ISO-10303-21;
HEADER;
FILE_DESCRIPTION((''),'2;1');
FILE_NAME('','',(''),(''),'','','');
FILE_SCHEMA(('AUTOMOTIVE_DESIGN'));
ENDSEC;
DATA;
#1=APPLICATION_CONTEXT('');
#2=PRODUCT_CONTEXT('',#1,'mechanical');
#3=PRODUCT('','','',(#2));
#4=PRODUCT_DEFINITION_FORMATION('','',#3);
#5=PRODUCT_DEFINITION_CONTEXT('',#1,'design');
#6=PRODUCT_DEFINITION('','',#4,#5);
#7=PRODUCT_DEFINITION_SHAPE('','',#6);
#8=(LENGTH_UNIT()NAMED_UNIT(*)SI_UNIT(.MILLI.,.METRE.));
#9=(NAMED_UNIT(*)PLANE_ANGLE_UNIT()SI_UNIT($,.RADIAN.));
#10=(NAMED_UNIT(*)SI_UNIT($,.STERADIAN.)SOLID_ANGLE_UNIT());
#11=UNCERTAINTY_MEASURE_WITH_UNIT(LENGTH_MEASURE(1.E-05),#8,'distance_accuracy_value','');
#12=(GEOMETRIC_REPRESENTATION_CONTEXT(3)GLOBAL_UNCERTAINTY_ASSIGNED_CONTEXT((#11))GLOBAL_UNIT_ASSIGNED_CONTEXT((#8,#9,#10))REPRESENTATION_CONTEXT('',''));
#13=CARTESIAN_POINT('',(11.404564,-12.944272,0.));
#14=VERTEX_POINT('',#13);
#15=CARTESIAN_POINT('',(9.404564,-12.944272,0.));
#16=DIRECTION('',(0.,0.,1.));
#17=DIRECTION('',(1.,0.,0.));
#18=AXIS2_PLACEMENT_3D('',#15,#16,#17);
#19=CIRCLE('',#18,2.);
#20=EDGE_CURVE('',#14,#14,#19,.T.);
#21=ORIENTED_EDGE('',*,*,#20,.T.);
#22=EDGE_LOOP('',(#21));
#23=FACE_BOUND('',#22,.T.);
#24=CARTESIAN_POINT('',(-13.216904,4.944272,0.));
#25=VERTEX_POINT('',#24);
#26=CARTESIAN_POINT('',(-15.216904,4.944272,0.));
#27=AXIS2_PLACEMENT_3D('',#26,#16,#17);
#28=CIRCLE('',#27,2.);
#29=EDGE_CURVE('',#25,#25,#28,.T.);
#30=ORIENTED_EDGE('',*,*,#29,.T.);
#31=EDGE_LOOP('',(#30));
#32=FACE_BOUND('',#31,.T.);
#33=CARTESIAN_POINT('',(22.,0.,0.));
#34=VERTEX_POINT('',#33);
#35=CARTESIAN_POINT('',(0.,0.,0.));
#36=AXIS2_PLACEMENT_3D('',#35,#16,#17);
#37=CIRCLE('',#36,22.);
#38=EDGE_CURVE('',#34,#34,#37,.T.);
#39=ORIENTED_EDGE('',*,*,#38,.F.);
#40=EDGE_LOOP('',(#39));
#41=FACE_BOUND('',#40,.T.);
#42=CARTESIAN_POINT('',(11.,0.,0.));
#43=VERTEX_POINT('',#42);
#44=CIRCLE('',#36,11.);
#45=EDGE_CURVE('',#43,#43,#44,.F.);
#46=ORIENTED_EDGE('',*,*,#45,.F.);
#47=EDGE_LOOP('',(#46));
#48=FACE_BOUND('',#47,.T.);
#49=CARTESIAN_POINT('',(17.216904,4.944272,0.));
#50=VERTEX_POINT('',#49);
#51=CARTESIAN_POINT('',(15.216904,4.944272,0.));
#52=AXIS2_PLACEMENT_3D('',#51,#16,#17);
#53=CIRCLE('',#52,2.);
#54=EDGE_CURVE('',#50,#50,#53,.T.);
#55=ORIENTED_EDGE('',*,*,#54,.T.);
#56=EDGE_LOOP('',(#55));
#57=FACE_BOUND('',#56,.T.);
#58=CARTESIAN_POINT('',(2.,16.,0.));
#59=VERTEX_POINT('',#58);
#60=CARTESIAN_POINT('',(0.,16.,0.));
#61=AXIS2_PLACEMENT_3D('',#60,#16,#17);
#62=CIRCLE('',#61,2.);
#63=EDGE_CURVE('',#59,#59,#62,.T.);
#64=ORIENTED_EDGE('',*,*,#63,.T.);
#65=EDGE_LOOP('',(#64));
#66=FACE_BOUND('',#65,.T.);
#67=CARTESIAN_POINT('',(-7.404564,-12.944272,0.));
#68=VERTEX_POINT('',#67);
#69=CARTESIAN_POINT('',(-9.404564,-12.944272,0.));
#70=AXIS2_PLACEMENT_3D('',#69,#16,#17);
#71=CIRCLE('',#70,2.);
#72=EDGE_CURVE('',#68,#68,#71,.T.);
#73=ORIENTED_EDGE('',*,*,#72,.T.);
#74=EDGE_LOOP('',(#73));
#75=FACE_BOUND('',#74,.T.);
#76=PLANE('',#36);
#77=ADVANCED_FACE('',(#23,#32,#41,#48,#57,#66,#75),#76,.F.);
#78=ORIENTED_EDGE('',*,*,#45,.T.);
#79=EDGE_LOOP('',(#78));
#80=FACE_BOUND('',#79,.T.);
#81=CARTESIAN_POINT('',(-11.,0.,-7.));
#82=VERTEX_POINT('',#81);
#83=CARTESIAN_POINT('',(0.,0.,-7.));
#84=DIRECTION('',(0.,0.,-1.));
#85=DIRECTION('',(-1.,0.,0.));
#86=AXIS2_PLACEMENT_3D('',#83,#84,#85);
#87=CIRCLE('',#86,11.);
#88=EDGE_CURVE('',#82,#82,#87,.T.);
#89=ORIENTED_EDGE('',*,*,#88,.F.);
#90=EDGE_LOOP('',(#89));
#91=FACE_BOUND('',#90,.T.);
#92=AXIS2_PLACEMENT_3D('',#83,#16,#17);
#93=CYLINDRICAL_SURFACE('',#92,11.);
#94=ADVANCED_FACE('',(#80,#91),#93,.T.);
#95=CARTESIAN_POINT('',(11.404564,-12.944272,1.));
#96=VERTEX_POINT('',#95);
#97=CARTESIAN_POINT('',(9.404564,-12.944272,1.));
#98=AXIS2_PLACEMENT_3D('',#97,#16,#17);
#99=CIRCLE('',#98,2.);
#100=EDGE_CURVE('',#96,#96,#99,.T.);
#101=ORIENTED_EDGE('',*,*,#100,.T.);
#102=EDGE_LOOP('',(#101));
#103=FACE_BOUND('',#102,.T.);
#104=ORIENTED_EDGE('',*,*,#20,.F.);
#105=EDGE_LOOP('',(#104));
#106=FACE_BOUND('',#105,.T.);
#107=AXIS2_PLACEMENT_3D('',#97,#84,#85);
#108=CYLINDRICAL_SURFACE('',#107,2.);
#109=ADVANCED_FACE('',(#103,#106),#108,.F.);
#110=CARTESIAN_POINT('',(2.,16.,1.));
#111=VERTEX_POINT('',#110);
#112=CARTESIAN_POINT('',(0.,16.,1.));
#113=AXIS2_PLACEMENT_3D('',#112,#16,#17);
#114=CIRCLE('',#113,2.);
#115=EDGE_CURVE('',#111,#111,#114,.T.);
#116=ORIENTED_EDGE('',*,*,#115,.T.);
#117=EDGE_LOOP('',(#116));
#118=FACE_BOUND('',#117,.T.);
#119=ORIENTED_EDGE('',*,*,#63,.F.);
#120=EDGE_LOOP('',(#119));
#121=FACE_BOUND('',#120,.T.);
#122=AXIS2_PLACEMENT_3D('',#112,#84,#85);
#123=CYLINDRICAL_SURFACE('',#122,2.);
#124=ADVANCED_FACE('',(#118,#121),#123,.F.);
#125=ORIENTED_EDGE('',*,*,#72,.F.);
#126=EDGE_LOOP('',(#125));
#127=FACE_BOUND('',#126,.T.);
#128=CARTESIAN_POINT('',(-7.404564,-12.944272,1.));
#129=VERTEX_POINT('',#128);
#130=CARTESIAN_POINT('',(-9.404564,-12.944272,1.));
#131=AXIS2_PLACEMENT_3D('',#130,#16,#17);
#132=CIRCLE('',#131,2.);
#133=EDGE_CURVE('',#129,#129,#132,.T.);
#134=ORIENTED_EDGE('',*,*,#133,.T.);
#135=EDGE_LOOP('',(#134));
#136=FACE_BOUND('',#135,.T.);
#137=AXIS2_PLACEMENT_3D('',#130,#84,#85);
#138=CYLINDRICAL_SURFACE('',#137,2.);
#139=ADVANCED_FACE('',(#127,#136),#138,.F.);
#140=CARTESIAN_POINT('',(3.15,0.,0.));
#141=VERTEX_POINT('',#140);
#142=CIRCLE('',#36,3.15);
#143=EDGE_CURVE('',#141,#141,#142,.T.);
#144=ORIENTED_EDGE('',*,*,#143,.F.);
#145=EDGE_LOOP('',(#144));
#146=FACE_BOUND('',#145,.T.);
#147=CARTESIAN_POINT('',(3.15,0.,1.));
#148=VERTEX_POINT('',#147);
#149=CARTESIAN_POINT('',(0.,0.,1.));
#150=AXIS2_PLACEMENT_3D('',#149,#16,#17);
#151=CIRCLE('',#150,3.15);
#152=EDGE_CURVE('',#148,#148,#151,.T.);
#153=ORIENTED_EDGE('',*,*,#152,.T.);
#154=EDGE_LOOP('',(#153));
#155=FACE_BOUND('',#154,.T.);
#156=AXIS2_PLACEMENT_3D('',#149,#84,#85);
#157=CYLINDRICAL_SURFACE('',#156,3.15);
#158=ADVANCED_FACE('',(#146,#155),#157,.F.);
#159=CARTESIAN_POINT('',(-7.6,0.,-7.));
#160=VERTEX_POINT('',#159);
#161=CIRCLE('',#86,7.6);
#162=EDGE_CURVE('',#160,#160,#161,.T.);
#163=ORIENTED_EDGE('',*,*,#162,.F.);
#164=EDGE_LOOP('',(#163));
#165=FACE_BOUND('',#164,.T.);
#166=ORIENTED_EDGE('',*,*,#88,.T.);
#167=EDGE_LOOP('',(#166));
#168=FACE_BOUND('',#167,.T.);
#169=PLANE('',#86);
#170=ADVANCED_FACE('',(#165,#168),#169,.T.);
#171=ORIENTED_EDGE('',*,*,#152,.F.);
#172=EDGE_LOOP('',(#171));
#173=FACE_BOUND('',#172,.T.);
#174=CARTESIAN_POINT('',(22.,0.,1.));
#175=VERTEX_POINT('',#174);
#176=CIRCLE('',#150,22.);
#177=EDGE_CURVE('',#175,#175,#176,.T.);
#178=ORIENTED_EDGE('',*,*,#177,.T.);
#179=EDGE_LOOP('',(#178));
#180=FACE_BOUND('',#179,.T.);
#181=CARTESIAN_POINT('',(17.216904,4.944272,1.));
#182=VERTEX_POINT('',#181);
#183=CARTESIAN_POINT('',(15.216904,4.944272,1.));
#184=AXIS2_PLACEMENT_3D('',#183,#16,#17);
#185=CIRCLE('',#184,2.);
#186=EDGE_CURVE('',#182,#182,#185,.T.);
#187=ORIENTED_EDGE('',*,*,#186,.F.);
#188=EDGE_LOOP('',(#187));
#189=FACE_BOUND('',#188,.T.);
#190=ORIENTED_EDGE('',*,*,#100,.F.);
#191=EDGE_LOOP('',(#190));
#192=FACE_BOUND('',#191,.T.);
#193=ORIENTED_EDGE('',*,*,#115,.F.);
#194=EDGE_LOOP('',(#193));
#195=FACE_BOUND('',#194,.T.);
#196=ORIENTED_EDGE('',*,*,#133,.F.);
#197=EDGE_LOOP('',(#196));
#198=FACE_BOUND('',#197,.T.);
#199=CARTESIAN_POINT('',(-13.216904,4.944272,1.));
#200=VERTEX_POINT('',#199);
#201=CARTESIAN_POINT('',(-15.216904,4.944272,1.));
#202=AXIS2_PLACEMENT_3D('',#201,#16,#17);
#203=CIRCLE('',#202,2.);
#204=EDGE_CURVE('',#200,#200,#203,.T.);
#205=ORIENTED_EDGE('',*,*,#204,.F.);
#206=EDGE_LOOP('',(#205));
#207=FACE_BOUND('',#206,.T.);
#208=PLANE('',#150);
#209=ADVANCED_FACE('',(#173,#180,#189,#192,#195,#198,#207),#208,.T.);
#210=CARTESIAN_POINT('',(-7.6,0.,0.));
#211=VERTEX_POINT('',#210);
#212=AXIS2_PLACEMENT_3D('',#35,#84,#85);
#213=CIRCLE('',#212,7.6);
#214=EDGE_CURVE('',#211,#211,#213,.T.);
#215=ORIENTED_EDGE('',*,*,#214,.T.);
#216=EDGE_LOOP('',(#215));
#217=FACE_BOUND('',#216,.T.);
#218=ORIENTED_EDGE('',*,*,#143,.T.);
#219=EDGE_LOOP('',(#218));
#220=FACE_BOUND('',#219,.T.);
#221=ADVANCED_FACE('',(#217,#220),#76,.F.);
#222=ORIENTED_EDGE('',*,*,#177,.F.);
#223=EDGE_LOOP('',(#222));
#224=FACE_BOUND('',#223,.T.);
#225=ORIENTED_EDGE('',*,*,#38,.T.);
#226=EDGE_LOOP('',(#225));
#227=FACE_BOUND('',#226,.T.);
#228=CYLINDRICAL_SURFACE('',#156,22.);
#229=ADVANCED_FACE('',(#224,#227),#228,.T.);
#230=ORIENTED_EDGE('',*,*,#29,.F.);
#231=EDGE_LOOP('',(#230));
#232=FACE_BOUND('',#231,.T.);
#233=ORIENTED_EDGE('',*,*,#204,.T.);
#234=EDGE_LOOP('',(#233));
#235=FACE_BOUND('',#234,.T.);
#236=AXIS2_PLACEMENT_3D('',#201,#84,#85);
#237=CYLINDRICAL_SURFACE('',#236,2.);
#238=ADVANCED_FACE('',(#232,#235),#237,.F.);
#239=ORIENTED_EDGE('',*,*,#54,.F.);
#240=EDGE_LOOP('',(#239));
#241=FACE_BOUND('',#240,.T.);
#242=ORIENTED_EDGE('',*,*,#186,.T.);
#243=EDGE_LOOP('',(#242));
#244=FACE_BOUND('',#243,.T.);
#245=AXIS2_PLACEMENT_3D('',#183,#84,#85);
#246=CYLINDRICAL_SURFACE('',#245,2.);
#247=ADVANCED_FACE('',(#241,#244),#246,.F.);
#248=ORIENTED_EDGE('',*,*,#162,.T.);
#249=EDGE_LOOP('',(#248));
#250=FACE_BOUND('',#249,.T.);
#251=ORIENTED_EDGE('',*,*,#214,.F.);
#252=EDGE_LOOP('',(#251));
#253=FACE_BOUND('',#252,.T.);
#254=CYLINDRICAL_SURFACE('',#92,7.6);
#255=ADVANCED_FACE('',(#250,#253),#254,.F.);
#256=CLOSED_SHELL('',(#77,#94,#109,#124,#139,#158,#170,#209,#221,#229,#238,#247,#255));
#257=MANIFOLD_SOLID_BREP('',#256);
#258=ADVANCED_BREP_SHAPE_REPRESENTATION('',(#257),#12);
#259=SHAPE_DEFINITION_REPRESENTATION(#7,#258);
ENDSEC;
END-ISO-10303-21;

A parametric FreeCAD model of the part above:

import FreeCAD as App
import Part
import Sketcher
from FreeCAD import Vector

doc = App.newDocument("Part")
body = doc.addObject("PartDesign::Body", "Body")

# Sketch on XY plane
sketch1 = body.newObject("Sketcher::SketchObject", "Sketch")
sketch1.AttachmentSupport = (doc.getObject("XY_Plane"), [""])
sketch1.MapMode = "FlatFace"
sketch1.addGeometry([
    Part.Circle(Vector(0, 0, 0), Vector(0, 0, 1), 22),  # 0
    Part.Circle(Vector(-9.404564, -12.944272, 0), Vector(0, 0, 1), 2),  # 1
    Part.Circle(Vector(0, 0, 0), Vector(0, 0, 1), 3.15),  # 2
    Part.Circle(Vector(9.404564, -12.944272, 0), Vector(0, 0, 1), 2),  # 3
    Part.Circle(Vector(-15.216904, 4.944272, 0), Vector(0, 0, 1), 2),  # 4
    Part.Circle(Vector(0, 16, 0), Vector(0, 0, 1), 2),  # 5
    Part.Circle(Vector(15.216904, 4.944272, 0), Vector(0, 0, 1), 2),  # 6
], False)
sketch1.addConstraint([
    Sketcher.Constraint("Coincident", 0, 3, -1, 1),
    Sketcher.Constraint("Coincident", 2, 3, -1, 1),
    Sketcher.Constraint("Equal", 1, 3),
    Sketcher.Constraint("Equal", 3, 4),
    Sketcher.Constraint("Equal", 4, 5),
    Sketcher.Constraint("Equal", 5, 6),
    Sketcher.Constraint("Symmetric", 1, 3, 3, 3, -2),
    Sketcher.Constraint("Symmetric", 4, 3, 6, 3, -2),
    Sketcher.Constraint("PointOnObject", 5, 3, -2),
    Sketcher.Constraint("Diameter", 0, 44.0),
    Sketcher.Constraint("Diameter", 1, 4.0),
    Sketcher.Constraint("Diameter", 2, 6.3),
    Sketcher.Constraint("DistanceY", -1, 1, 5, 3, 16.0),
    Sketcher.Constraint("DistanceY", 1, 3, -1, 1, 12.944272),
    Sketcher.Constraint("DistanceY", -1, 1, 4, 3, 4.944272),
    Sketcher.Constraint("DistanceX", 1, 3, 3, 3, 18.809128),
    Sketcher.Constraint("DistanceX", 4, 3, 1, 3, 5.81234),
])
pad1 = body.newObject("PartDesign::Pad", "Pad")
pad1.Profile = sketch1
pad1.Length = 1

# Sketch on XY plane
sketch2 = body.newObject("Sketcher::SketchObject", "Sketch001")
sketch2.AttachmentSupport = (doc.getObject("XY_Plane"), [""])
sketch2.MapMode = "FlatFace"
sketch2.addGeometry([
    Part.Circle(Vector(0, 0, 0), Vector(0, 0, 1), 11),
    Part.Circle(Vector(0, 0, 0), Vector(0, 0, 1), 7.6),
], False)
sketch2.addConstraint([
    Sketcher.Constraint("Coincident", 0, 3, -1, 1),
    Sketcher.Constraint("Coincident", 1, 3, -1, 1),
    Sketcher.Constraint("Diameter", 0, 22.0),
    Sketcher.Constraint("Diameter", 1, 15.2),
])
pad2 = body.newObject("PartDesign::Pad", "Pad001")
pad2.Profile = sketch2
pad2.Length = 7
pad2.Reversed = True

doc.recompute()
